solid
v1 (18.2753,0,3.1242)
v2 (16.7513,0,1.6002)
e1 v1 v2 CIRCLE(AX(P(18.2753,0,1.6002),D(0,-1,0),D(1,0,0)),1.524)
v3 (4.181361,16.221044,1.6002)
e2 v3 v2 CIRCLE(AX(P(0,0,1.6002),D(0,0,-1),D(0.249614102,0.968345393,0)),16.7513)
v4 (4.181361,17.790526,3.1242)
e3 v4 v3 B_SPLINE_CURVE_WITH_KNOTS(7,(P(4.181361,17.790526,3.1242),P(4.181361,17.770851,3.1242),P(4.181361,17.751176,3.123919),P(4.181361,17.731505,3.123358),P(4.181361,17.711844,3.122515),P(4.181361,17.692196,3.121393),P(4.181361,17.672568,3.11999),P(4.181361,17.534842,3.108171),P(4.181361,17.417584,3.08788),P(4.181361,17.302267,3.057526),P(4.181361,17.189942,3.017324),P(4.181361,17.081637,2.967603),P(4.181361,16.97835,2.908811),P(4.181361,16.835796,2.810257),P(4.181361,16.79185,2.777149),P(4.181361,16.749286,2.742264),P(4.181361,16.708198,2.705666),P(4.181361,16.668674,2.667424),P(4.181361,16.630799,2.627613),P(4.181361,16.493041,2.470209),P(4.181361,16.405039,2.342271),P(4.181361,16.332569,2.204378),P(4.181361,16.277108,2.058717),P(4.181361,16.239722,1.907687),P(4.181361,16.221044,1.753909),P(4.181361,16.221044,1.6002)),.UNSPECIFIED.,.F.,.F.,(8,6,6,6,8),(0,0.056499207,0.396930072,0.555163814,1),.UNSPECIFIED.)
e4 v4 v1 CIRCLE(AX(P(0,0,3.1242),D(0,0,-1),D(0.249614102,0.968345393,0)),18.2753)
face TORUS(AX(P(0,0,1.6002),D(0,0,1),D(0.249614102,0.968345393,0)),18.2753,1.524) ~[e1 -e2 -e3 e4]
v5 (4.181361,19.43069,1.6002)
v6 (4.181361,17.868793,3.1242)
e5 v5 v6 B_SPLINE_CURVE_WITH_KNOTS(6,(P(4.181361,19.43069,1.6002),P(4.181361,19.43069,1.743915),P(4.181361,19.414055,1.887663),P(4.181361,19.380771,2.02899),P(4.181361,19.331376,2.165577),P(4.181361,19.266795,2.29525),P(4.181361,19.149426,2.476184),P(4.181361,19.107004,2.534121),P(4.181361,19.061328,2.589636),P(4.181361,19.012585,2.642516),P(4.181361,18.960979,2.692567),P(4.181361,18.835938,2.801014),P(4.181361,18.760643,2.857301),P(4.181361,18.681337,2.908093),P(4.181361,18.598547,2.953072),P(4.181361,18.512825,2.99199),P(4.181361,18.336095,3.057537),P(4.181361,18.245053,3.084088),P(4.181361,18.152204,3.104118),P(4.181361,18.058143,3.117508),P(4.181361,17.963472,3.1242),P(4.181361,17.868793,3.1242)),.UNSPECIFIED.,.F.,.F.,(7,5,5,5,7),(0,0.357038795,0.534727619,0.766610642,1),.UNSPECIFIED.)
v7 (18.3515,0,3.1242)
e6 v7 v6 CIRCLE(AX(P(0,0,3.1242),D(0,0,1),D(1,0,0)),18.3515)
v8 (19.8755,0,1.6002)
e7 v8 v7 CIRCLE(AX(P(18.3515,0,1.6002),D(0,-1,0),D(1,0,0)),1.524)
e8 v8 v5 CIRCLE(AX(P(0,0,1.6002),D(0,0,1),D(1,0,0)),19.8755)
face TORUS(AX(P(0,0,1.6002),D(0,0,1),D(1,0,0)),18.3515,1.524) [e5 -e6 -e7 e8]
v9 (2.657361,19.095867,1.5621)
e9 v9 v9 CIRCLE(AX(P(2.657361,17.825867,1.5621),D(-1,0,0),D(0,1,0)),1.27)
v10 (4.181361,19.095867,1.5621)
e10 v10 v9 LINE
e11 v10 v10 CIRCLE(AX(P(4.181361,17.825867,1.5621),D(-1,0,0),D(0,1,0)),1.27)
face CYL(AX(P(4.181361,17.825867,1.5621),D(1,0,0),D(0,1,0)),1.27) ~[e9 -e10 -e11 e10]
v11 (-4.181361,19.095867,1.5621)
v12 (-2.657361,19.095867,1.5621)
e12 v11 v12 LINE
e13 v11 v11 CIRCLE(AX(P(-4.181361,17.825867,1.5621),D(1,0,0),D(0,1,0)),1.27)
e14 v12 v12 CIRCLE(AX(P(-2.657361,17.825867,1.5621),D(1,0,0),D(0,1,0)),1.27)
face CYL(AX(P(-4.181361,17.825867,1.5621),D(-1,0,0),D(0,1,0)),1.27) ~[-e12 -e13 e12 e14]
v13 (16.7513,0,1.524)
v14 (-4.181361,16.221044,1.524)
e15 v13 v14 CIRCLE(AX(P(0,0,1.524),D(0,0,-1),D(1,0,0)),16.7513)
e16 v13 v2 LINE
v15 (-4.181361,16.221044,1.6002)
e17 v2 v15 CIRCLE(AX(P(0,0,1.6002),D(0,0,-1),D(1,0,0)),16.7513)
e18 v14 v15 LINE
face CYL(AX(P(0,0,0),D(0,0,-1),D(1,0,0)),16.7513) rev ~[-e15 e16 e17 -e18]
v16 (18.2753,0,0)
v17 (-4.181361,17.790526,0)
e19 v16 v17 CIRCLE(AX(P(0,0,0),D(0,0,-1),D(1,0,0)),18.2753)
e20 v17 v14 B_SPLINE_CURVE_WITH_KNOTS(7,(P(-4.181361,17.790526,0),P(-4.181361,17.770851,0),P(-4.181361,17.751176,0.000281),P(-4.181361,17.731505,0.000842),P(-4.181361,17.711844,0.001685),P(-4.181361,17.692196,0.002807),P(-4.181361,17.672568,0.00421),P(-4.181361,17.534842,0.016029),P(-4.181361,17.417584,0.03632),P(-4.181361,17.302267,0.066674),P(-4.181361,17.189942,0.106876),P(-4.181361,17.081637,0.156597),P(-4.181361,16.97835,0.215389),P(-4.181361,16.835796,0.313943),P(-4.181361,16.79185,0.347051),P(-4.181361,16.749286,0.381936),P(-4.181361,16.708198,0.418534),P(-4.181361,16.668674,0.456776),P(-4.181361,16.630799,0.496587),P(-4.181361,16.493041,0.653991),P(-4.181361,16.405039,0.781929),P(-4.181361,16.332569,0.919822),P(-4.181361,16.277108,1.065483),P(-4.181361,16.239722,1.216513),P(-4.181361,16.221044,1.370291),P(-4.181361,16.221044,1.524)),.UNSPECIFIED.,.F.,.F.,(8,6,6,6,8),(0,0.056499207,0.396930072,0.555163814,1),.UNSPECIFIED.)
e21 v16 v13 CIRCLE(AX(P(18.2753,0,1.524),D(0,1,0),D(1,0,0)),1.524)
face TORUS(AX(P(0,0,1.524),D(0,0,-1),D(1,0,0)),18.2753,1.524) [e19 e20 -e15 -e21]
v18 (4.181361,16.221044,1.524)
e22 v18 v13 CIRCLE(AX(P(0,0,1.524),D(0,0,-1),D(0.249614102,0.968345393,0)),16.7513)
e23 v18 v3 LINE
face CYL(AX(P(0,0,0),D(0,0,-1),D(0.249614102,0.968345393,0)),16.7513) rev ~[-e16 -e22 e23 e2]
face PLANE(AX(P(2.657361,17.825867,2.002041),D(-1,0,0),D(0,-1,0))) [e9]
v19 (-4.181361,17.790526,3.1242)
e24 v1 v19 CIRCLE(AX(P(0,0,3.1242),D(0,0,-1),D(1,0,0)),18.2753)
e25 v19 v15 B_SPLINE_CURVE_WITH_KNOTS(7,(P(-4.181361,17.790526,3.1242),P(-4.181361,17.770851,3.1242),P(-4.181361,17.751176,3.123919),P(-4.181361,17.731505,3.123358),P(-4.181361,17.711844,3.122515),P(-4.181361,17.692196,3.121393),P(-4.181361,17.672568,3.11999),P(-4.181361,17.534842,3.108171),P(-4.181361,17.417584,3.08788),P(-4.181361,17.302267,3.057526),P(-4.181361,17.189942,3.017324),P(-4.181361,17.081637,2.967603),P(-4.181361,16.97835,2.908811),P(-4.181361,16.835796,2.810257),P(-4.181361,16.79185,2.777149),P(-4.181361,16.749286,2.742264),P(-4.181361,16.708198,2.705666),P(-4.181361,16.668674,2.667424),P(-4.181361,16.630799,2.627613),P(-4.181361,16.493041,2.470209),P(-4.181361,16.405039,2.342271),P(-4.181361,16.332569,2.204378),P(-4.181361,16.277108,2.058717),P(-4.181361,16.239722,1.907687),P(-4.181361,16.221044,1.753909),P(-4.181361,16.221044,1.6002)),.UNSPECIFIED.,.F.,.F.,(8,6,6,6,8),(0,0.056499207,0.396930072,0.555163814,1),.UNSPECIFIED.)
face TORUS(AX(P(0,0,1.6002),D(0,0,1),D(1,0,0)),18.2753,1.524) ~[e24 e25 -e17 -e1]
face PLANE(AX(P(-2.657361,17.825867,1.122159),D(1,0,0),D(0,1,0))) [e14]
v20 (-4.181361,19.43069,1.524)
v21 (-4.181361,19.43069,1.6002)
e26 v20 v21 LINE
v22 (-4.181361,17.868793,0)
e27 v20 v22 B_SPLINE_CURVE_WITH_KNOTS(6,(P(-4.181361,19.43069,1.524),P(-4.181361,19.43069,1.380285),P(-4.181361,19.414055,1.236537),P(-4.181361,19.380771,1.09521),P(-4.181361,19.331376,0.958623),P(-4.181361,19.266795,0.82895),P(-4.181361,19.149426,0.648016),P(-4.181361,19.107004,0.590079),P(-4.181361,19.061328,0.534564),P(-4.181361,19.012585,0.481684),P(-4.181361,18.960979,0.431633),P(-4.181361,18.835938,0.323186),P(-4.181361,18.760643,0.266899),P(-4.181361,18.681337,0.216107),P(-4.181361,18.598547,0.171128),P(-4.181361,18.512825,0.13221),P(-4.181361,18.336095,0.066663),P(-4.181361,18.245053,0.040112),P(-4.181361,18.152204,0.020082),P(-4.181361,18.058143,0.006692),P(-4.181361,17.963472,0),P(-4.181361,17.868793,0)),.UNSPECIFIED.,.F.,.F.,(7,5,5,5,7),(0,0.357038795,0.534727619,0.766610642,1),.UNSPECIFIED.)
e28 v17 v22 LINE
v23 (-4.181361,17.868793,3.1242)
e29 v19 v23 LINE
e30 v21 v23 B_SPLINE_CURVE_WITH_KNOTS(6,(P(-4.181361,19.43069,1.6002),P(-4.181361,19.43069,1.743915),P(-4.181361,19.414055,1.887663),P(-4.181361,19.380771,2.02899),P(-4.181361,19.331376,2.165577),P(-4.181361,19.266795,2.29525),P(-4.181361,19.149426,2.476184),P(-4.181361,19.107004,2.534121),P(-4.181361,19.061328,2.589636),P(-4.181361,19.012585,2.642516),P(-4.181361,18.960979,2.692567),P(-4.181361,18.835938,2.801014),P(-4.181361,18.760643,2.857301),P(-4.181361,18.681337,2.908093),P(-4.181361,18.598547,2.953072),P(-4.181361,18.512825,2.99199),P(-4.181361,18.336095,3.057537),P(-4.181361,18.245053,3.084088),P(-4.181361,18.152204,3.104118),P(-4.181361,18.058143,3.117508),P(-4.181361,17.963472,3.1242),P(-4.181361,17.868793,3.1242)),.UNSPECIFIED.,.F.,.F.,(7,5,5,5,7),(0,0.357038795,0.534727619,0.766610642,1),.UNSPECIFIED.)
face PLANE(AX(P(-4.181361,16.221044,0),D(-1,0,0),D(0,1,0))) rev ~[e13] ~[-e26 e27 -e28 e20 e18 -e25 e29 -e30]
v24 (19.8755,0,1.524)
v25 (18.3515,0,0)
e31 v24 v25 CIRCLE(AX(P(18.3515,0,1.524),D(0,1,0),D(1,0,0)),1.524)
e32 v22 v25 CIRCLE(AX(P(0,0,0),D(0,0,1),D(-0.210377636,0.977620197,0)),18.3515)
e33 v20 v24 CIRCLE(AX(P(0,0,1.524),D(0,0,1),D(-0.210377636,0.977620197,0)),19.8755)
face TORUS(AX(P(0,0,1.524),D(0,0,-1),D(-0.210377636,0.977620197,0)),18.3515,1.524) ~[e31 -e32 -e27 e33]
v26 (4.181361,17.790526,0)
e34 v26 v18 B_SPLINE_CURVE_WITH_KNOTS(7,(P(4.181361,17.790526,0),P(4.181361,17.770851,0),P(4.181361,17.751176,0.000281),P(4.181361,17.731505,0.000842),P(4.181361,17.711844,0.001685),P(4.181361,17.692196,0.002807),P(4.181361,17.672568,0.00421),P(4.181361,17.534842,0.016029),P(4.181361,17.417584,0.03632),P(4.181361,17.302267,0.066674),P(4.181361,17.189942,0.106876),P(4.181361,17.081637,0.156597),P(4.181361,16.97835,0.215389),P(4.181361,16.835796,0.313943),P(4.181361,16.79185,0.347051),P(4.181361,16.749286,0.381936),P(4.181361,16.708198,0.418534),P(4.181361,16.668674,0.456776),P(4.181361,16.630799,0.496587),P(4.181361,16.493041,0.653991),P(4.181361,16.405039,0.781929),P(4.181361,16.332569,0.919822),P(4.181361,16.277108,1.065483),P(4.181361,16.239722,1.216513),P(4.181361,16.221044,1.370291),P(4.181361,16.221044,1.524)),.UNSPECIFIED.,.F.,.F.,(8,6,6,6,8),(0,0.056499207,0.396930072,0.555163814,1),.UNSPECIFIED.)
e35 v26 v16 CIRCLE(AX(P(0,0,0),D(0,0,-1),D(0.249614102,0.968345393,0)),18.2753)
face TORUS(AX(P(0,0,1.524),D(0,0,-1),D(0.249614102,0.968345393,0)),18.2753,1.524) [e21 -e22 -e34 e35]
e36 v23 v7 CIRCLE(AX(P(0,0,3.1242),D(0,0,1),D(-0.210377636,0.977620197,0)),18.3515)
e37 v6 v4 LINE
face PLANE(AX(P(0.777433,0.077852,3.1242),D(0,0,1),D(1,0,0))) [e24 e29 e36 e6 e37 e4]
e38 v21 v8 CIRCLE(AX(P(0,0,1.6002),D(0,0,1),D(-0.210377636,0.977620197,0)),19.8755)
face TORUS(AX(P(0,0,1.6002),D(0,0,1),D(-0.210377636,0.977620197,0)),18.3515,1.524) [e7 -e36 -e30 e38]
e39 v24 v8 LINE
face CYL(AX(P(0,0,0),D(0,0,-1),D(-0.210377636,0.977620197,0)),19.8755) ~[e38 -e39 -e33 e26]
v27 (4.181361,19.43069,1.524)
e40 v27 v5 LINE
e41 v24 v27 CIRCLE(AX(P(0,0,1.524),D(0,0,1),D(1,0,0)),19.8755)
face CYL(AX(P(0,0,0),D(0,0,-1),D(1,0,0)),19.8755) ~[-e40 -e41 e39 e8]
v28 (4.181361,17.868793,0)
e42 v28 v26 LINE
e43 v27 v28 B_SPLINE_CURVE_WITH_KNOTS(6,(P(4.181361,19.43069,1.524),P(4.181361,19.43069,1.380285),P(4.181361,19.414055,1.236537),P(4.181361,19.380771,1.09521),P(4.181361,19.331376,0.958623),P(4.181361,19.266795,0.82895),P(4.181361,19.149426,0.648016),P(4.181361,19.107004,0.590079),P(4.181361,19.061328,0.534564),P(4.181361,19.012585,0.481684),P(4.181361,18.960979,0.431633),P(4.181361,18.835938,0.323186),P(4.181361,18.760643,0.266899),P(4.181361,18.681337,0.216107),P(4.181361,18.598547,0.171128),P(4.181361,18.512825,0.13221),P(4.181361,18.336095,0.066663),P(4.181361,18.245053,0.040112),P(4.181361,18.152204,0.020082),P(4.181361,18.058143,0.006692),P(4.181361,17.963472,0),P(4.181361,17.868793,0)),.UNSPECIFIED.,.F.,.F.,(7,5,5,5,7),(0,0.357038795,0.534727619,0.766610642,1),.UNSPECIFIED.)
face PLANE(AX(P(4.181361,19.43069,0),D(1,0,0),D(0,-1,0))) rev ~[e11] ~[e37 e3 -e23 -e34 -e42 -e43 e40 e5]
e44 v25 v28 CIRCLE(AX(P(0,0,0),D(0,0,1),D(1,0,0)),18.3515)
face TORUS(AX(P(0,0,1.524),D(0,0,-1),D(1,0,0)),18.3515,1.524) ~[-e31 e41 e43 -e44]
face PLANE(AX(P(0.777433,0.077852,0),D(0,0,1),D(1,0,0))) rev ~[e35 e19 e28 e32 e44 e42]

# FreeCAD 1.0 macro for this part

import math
import FreeCAD as App
import Part
import Sketcher
Q = App.Units.Quantity


def edges_at(feature, points):
    """Names of the edges that pass closest to the given points."""
    edges = feature.Shape.Edges
    near = lambda p: min(range(len(edges)), key=lambda i: edges[i].distToShape(Part.Vertex(*p))[0])
    return sorted({f"Edge{near(p) + 1}" for p in points})

doc = App.newDocument("Part")
body = doc.addObject("PartDesign::Body", "Body")

# Sketch on XY plane
sketch1 = body.newObject("Sketcher::SketchObject", "Sketch")
sketch1.AttachmentSupport = (doc.getObject("XY_Plane"), [""])
sketch1.MapMode = "FlatFace"
sketch1.addGeometry([
    Part.ArcOfCircle(Part.Circle(App.Vector(0, 0, 0), App.Vector(0, 0, 1), 19.9), math.radians(102), math.radians(360)),  # 0
    Part.ArcOfCircle(Part.Circle(App.Vector(0, 0, 0), App.Vector(0, 0, 1), 19.9), math.radians(0), math.radians(78)),  # 1
    Part.LineSegment(App.Vector(4.2, 19.4, 0), App.Vector(4.2, 16.2, 0)),  # 2
    Part.ArcOfCircle(Part.Circle(App.Vector(0, 0, 0), App.Vector(0, 0, 1), 16.8), math.radians(0), math.radians(76)),  # 3
    Part.ArcOfCircle(Part.Circle(App.Vector(0, 0, 0), App.Vector(0, 0, 1), 16.8), math.radians(104), math.radians(360)),  # 4
    Part.LineSegment(App.Vector(-4.2, 16.2, 0), App.Vector(-4.2, 19.4, 0)),  # 5
], False)
sketch1.addConstraint([
    Sketcher.Constraint("Tangent", 0, 2, 1, 1),
    Sketcher.Constraint("Coincident", 1, 2, 2, 1),
    Sketcher.Constraint("Coincident", 2, 2, 3, 2),
    Sketcher.Constraint("Tangent", 3, 1, 4, 2),
    Sketcher.Constraint("Coincident", 4, 1, 5, 1),
    Sketcher.Constraint("Coincident", 5, 2, 0, 1),
    Sketcher.Constraint("Vertical", 2),
    Sketcher.Constraint("Vertical", 5),
    Sketcher.Constraint("Coincident", 0, 3, -1, 1),
    Sketcher.Constraint("Coincident", 3, 3, -1, 1),
    Sketcher.Constraint("Equal", 0, 1),
    Sketcher.Constraint("Equal", 3, 4),
    Sketcher.Constraint("PointOnObject", 0, 2, -1),
    Sketcher.Constraint("PointOnObject", 3, 1, -1),
    Sketcher.Constraint("Horizontal", 2, 2, 4, 1),
    Sketcher.Constraint("Radius", 0, Q("0.7825 in")),
    Sketcher.Constraint("Radius", 3, Q("0.6595 in")),
    Sketcher.Constraint("DistanceY", 2, 2, 2, 1, 3.209646),
])
pad1 = body.newObject("PartDesign::Pad", "Pad")
pad1.Profile = sketch1
pad1.Length = Q("0.123 in")

# Sketch on YZ plane
sketch2 = body.newObject("Sketcher::SketchObject", "Sketch001")
sketch2.AttachmentSupport = (doc.getObject("YZ_Plane"), [""])
sketch2.MapMode = "FlatFace"
sketch2.AttachmentOffset = App.Placement(App.Vector(0, 0, 4.181361), App.Rotation())
sketch2.addGeometry(Part.Circle(App.Vector(17.8, 1.6, 0), App.Vector(0, 0, 1), 1.3), False)
sketch2.addConstraint([
    Sketcher.Constraint("Diameter", 0, Q("0.1 in")),
    Sketcher.Constraint("DistanceY", -1, 1, 0, 3, Q("0.0615 in")),
    Sketcher.Constraint("DistanceX", -1, 1, 0, 3, 17.825867),
])
pad2 = body.newObject("PartDesign::Pad", "Pad001")
pad2.Profile = sketch2
pad2.Length = Q("0.06 in")
pad2.Reversed = True

# Sketch on YZ plane
sketch3 = body.newObject("Sketcher::SketchObject", "Sketch002")
sketch3.AttachmentSupport = (doc.getObject("YZ_Plane"), [""])
sketch3.MapMode = "FlatFace"
sketch3.AttachmentOffset = App.Placement(App.Vector(0, 0, -4.181361), App.Rotation())
sketch3.addGeometry(Part.Circle(App.Vector(17.8, 1.6, 0), App.Vector(0, 0, 1), 1.3), False)
sketch3.addConstraint([
    Sketcher.Constraint("Diameter", 0, Q("0.1 in")),
    Sketcher.Constraint("DistanceY", -1, 1, 0, 3, Q("0.0615 in")),
    Sketcher.Constraint("DistanceX", -1, 1, 0, 3, 17.825867),
])
pad3 = body.newObject("PartDesign::Pad", "Pad002")
pad3.Profile = sketch3
pad3.Length = Q("0.06 in")
doc.recompute()

fillet = body.newObject("PartDesign::Fillet", "Fillet")
fillet.Base = (pad3, edges_at(pad3, [
    (-10.261, -13.241, 3.124),
    (-12.489, -15.462, 3.124),
    (-12.489, -15.462, 0),
    (-10.261, -13.241, 0),
]))
fillet.Radius = Q("0.06 in")

doc.recompute()
